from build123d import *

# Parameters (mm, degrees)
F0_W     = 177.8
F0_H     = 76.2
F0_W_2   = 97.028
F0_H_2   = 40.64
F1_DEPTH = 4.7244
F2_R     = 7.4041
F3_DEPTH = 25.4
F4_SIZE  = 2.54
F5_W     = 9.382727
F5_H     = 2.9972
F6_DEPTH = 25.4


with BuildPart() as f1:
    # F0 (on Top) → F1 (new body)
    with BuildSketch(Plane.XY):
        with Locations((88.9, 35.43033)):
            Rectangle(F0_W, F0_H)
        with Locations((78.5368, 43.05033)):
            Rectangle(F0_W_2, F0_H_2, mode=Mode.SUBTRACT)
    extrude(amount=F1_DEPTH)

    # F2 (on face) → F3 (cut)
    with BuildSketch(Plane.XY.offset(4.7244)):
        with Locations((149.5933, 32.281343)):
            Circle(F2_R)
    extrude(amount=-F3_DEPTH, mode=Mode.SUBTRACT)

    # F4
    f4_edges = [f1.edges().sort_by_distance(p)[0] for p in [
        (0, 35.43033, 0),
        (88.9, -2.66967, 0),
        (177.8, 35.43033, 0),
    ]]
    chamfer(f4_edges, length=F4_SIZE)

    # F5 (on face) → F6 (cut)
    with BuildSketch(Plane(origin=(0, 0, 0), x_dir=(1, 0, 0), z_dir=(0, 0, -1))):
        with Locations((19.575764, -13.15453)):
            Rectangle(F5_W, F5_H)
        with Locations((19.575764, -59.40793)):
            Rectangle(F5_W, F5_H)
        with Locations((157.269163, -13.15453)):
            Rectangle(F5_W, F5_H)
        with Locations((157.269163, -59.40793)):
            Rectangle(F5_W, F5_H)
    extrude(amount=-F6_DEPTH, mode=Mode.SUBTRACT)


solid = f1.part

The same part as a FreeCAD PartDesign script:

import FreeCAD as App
import Part
import Sketcher
Q = App.Units.Quantity


def edges_at(feature, points):
    """Names of the edges that pass closest to the given points."""
    edges = feature.Shape.Edges
    near = lambda p: min(range(len(edges)), key=lambda i: edges[i].distToShape(Part.Vertex(*p))[0])
    return sorted({f"Edge{near(p) + 1}" for p in points})

doc = App.newDocument("Part")
body = doc.addObject("PartDesign::Body", "Body")

# Sketch on XY plane
sketch1 = body.newObject("Sketcher::SketchObject", "Sketch")
sketch1.AttachmentSupport = (doc.getObject("XY_Plane"), [""])
sketch1.MapMode = "FlatFace"
sketch1.addGeometry(Part.LineSegment(App.Vector(0, 74, 0), App.Vector(0, -3, 0)), False)
sketch1.addGeometry(Part.LineSegment(App.Vector(0, -3, 0), App.Vector(178, -3, 0)), False)
sketch1.addGeometry(Part.LineSegment(App.Vector(178, -3, 0), App.Vector(178, 74, 0)), False)
sketch1.addGeometry(Part.LineSegment(App.Vector(178, 74, 0), App.Vector(0, 74, 0)), False)
sketch1.addGeometry(Part.LineSegment(App.Vector(127, 23, 0), App.Vector(30, 23, 0)), False)
sketch1.addGeometry(Part.LineSegment(App.Vector(30, 23, 0), App.Vector(30, 63, 0)), False)
sketch1.addGeometry(Part.LineSegment(App.Vector(30, 63, 0), App.Vector(127, 63, 0)), False)
sketch1.addGeometry(Part.LineSegment(App.Vector(127, 63, 0), App.Vector(127, 23, 0)), False)
sketch1.addConstraint(Sketcher.Constraint("Coincident", 0, 2, 1, 1))
sketch1.addConstraint(Sketcher.Constraint("Coincident", 1, 2, 2, 1))
sketch1.addConstraint(Sketcher.Constraint("Coincident", 2, 2, 3, 1))
sketch1.addConstraint(Sketcher.Constraint("Coincident", 3, 2, 0, 1))
sketch1.addConstraint(Sketcher.Constraint("Coincident", 4, 2, 5, 1))
sketch1.addConstraint(Sketcher.Constraint("Coincident", 5, 2, 6, 1))
sketch1.addConstraint(Sketcher.Constraint("Coincident", 6, 2, 7, 1))
sketch1.addConstraint(Sketcher.Constraint("Coincident", 7, 2, 4, 1))
sketch1.addConstraint(Sketcher.Constraint("Vertical", 0))
sketch1.addConstraint(Sketcher.Constraint("Horizontal", 1))
sketch1.addConstraint(Sketcher.Constraint("Vertical", 2))
sketch1.addConstraint(Sketcher.Constraint("Horizontal", 3))
sketch1.addConstraint(Sketcher.Constraint("Horizontal", 4))
sketch1.addConstraint(Sketcher.Constraint("Vertical", 5))
sketch1.addConstraint(Sketcher.Constraint("Horizontal", 6))
sketch1.addConstraint(Sketcher.Constraint("Vertical", 7))
sketch1.addConstraint(Sketcher.Constraint("PointOnObject", 0, 2, -2))
sketch1.addConstraint(Sketcher.Constraint("DistanceX", 1, 1, 1, 2, Q("7 in")))
sketch1.addConstraint(Sketcher.Constraint("DistanceY", 0, 2, 0, 1, Q("3 in")))
sketch1.addConstraint(Sketcher.Constraint("DistanceY", 5, 1, 5, 2, Q("1.6 in")))
sketch1.addConstraint(Sketcher.Constraint("DistanceY", 0, 2, 4, 2, Q("1 in")))
sketch1.addConstraint(Sketcher.Constraint("DistanceX", 4, 2, 4, 1, Q("3.82 in")))
sketch1.addConstraint(Sketcher.Constraint("DistanceX", -1, 1, 4, 2, Q("1.182 in")))
sketch1.addConstraint(Sketcher.Constraint("DistanceY", 0, 2, -1, 1, 2.66967))
pad1 = body.newObject("PartDesign::Pad", "Pad")
pad1.Profile = sketch1
pad1.Length = Q("0.186 in")

# Sketch on XY plane
sketch2 = body.newObject("Sketcher::SketchObject", "Sketch001")
sketch2.AttachmentSupport = (doc.getObject("XY_Plane"), [""])
sketch2.MapMode = "FlatFace"
sketch2.AttachmentOffset = App.Placement(App.Vector(0, 0, 0.186 * 25.4), App.Rotation())
sketch2.addGeometry(Part.Circle(App.Vector(150, 32, 0), App.Vector(0, 0, 1), 7), False)
sketch2.addConstraint(Sketcher.Constraint("Diameter", 0, Q("0.583 in")))
sketch2.addConstraint(Sketcher.Constraint("DistanceX", -1, 1, 0, 3, Q("5.8895 in")))
sketch2.addConstraint(Sketcher.Constraint("DistanceY", -1, 1, 0, 3, 32.281343))
pocket1 = body.newObject("PartDesign::Pocket", "Pocket")
pocket1.Profile = sketch2
pocket1.Length = Q("1 in")
doc.recompute()

chamfer = body.newObject("PartDesign::Chamfer", "Chamfer")
chamfer.Base = (pocket1, edges_at(pocket1, [(0, 35.43, 0), (88.9, -2.67, 0), (177.8, 35.43, 0)]))
chamfer.Size = Q("0.1 in")

# Sketch on XY plane
sketch3 = body.newObject("Sketcher::SketchObject", "Sketch002")
sketch3.AttachmentSupport = (doc.getObject("XY_Plane"), [""])
sketch3.MapMode = "FlatFace"
sketch3.addGeometry(Part.LineSegment(App.Vector(14.9, 11.7, 0), App.Vector(14.9, 14.7, 0)), False)
sketch3.addGeometry(Part.LineSegment(App.Vector(14.9, 14.7, 0), App.Vector(24.3, 14.7, 0)), False)
sketch3.addGeometry(Part.LineSegment(App.Vector(24.3, 14.7, 0), App.Vector(24.3, 11.7, 0)), False)
sketch3.addGeometry(Part.LineSegment(App.Vector(24.3, 11.7, 0), App.Vector(14.9, 11.7, 0)), False)
sketch3.addGeometry(Part.LineSegment(App.Vector(14.9, 57.9, 0), App.Vector(14.9, 60.9, 0)), False)
sketch3.addGeometry(Part.LineSegment(App.Vector(14.9, 60.9, 0), App.Vector(24.3, 60.9, 0)), False)
sketch3.addGeometry(Part.LineSegment(App.Vector(24.3, 60.9, 0), App.Vector(24.3, 57.9, 0)), False)
sketch3.addGeometry(Part.LineSegment(App.Vector(24.3, 57.9, 0), App.Vector(14.9, 57.9, 0)), False)
sketch3.addGeometry(Part.LineSegment(App.Vector(152.6, 11.7, 0), App.Vector(152.6, 14.7, 0)), False)
sketch3.addGeometry(Part.LineSegment(App.Vector(152.6, 14.7, 0), App.Vector(162, 14.7, 0)), False)
sketch3.addGeometry(Part.LineSegment(App.Vector(162, 14.7, 0), App.Vector(162, 11.7, 0)), False)
sketch3.addGeometry(Part.LineSegment(App.Vector(162, 11.7, 0), App.Vector(152.6, 11.7, 0)), False)
sketch3.addGeometry(Part.LineSegment(App.Vector(152.6, 57.9, 0), App.Vector(152.6, 60.9, 0)), False)
sketch3.addGeometry(Part.LineSegment(App.Vector(152.6, 60.9, 0), App.Vector(162, 60.9, 0)), False)
sketch3.addGeometry(Part.LineSegment(App.Vector(162, 60.9, 0), App.Vector(162, 57.9, 0)), False)
sketch3.addGeometry(Part.LineSegment(App.Vector(162, 57.9, 0), App.Vector(152.6, 57.9, 0)), False)
sketch3.addConstraint(Sketcher.Constraint("Coincident", 0, 2, 1, 1))
sketch3.addConstraint(Sketcher.Constraint("Coincident", 1, 2, 2, 1))
sketch3.addConstraint(Sketcher.Constraint("Coincident", 2, 2, 3, 1))
sketch3.addConstraint(Sketcher.Constraint("Coincident", 3, 2, 0, 1))
sketch3.addConstraint(Sketcher.Constraint("Coincident", 4, 2, 5, 1))
sketch3.addConstraint(Sketcher.Constraint("Coincident", 5, 2, 6, 1))
sketch3.addConstraint(Sketcher.Constraint("Coincident", 6, 2, 7, 1))
sketch3.addConstraint(Sketcher.Constraint("Coincident", 7, 2, 4, 1))
sketch3.addConstraint(Sketcher.Constraint("Coincident", 8, 2, 9, 1))
sketch3.addConstraint(Sketcher.Constraint("Coincident", 9, 2, 10, 1))
sketch3.addConstraint(Sketcher.Constraint("Coincident", 10, 2, 11, 1))
sketch3.addConstraint(Sketcher.Constraint("Coincident", 11, 2, 8, 1))
sketch3.addConstraint(Sketcher.Constraint("Coincident", 12, 2, 13, 1))
sketch3.addConstraint(Sketcher.Constraint("Coincident", 13, 2, 14, 1))
sketch3.addConstraint(Sketcher.Constraint("Coincident", 14, 2, 15, 1))
sketch3.addConstraint(Sketcher.Constraint("Coincident", 15, 2, 12, 1))
sketch3.addConstraint(Sketcher.Constraint("Vertical", 0))
sketch3.addConstraint(Sketcher.Constraint("Horizontal", 1))
sketch3.addConstraint(Sketcher.Constraint("Vertical", 2))
sketch3.addConstraint(Sketcher.Constraint("Horizontal", 3))
sketch3.addConstraint(Sketcher.Constraint("Vertical", 4))
sketch3.addConstraint(Sketcher.Constraint("Horizontal", 5))
sketch3.addConstraint(Sketcher.Constraint("Vertical", 6))
sketch3.addConstraint(Sketcher.Constraint("Horizontal", 7))
sketch3.addConstraint(Sketcher.Constraint("Vertical", 8))
sketch3.addConstraint(Sketcher.Constraint("Horizontal", 9))
sketch3.addConstraint(Sketcher.Constraint("Vertical", 10))
sketch3.addConstraint(Sketcher.Constraint("Horizontal", 11))
sketch3.addConstraint(Sketcher.Constraint("Vertical", 12))
sketch3.addConstraint(Sketcher.Constraint("Horizontal", 13))
sketch3.addConstraint(Sketcher.Constraint("Vertical", 14))
sketch3.addConstraint(Sketcher.Constraint("Horizontal", 15))
sketch3.addConstraint(Sketcher.Constraint("Horizontal", 1, 2, 8, 2))
sketch3.addConstraint(Sketcher.Constraint("Horizontal", 3, 2, 10, 2))
sketch3.addConstraint(Sketcher.Constraint("Horizontal", 5, 2, 12, 2))
sketch3.addConstraint(Sketcher.Constraint("Horizontal", 7, 2, 14, 2))
sketch3.addConstraint(Sketcher.Constraint("Vertical", 3, 2, 4, 2))
sketch3.addConstraint(Sketcher.Constraint("Vertical", 2, 2, 5, 2))
sketch3.addConstraint(Sketcher.Constraint("Vertical", 11, 2, 12, 2))
sketch3.addConstraint(Sketcher.Constraint("Vertical", 10, 2, 13, 2))
sketch3.addConstraint(Sketcher.Constraint("Equal", 7, 9))
sketch3.addConstraint(Sketcher.Constraint("Equal", 2, 4))
sketch3.addConstraint(Sketcher.Constraint("DistanceY", 0, 1, 0, 2, Q("0.118 in")))
sketch3.addConstraint(Sketcher.Constraint("DistanceX", -1, 1, 0, 2, Q("0.586 in")))
sketch3.addConstraint(Sketcher.Constraint("DistanceX", -1, 1, 8, 2, Q("6.007 in")))
sketch3.addConstraint(Sketcher.Constraint("DistanceY", 0, 2, 4, 2, Q("1.821 in")))
sketch3.addConstraint(Sketcher.Constraint("DistanceX", 1, 1, 1, 2, 9.382727))
sketch3.addConstraint(Sketcher.Constraint("DistanceY", -1, 1, 0, 2, 14.65313))
pocket2 = body.newObject("PartDesign::Pocket", "Pocket001")
pocket2.Profile = sketch3
pocket2.Length = Q("1 in")
pocket2.Reversed = True

doc.recompute()
